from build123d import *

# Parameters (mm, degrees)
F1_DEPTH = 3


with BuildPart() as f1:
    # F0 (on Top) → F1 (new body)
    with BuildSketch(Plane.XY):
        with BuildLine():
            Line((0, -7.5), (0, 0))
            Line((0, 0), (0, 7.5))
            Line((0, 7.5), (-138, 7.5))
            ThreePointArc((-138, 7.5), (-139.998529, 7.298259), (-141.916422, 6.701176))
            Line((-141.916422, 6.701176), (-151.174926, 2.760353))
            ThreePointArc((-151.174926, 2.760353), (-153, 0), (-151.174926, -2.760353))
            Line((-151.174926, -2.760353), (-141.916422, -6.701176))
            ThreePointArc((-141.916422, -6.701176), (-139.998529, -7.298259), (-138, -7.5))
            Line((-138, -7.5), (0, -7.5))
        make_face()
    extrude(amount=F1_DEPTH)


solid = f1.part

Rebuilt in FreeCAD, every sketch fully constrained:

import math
import FreeCAD as App
import Part
import Sketcher

V = App.Vector

doc = App.newDocument("Part")
body = doc.addObject("PartDesign::Body", "Body")

sketch1 = body.newObject("Sketcher::SketchObject", "Sketch")
sketch1.AttachmentSupport = (doc.getObject("XY_Plane"), [""])
sketch1.MapMode = "FlatFace"
sketch1.addGeometry(Part.LineSegment(V(0, -7.5, 0), V(0, 7.5, 0)), False)
sketch1.addGeometry(Part.LineSegment(V(0, 7.5, 0), V(-138, 7.5, 0)), False)
sketch1.addGeometry(Part.ArcOfCircle(Part.Circle(V(-138, -2.5, 0), V(0, 0, 1), 10), math.radians(90), math.radians(113)), False)
sketch1.addGeometry(Part.LineSegment(V(-141.9, 6.7, 0), V(-151.2, 2.8, 0)), False)
sketch1.addGeometry(Part.ArcOfCircle(Part.Circle(V(-150, 0, 0), V(0, 0, 1), 3), math.radians(113), math.radians(247)), False)
sketch1.addGeometry(Part.LineSegment(V(-151.2, -2.8, 0), V(-141.9, -6.7, 0)), False)
sketch1.addGeometry(Part.ArcOfCircle(Part.Circle(V(-138, 2.5, 0), V(0, 0, 1), 10), math.radians(-113), math.radians(-90)), False)
sketch1.addGeometry(Part.LineSegment(V(-138, -7.5, 0), V(0, -7.5, 0)), False)
sketch1.addConstraint(Sketcher.Constraint("Coincident", 0, 2, 1, 1))
sketch1.addConstraint(Sketcher.Constraint("Tangent", 1, 2, 2, 1))
sketch1.addConstraint(Sketcher.Constraint("Tangent", 2, 2, 3, 1))
sketch1.addConstraint(Sketcher.Constraint("Tangent", 3, 2, 4, 1))
sketch1.addConstraint(Sketcher.Constraint("Tangent", 4, 2, 5, 1))
sketch1.addConstraint(Sketcher.Constraint("Tangent", 5, 2, 6, 1))
sketch1.addConstraint(Sketcher.Constraint("Tangent", 6, 2, 7, 1))
sketch1.addConstraint(Sketcher.Constraint("Coincident", 7, 2, 0, 1))
sketch1.addConstraint(Sketcher.Constraint("Vertical", 0))
sketch1.addConstraint(Sketcher.Constraint("Horizontal", 1))
sketch1.addConstraint(Sketcher.Constraint("Horizontal", 7))
sketch1.addConstraint(Sketcher.Constraint("Equal", 2, 6))
sketch1.addConstraint(Sketcher.Constraint("Symmetric", 0, 2, 7, 2, -1, 1))
sketch1.addConstraint(Sketcher.Constraint("Symmetric", 3, 2, 4, 2, -1))
sketch1.addConstraint(Sketcher.Constraint("Radius", 4, 3.0))
sketch1.addConstraint(Sketcher.Constraint("DistanceX", 1, 2, 1, 1, 138.0))
sketch1.addConstraint(Sketcher.Constraint("DistanceY", 0, 1, 0, 2, 15.0))
sketch1.addConstraint(Sketcher.Constraint("DistanceX", 4, 3, -1, 1, 150.0))
sketch1.addConstraint(Sketcher.Constraint("Radius", 2, 10.000007))
pad1 = body.newObject("PartDesign::Pad", "Pad")
pad1.Profile = sketch1
pad1.Length = 3

doc.recompute()
